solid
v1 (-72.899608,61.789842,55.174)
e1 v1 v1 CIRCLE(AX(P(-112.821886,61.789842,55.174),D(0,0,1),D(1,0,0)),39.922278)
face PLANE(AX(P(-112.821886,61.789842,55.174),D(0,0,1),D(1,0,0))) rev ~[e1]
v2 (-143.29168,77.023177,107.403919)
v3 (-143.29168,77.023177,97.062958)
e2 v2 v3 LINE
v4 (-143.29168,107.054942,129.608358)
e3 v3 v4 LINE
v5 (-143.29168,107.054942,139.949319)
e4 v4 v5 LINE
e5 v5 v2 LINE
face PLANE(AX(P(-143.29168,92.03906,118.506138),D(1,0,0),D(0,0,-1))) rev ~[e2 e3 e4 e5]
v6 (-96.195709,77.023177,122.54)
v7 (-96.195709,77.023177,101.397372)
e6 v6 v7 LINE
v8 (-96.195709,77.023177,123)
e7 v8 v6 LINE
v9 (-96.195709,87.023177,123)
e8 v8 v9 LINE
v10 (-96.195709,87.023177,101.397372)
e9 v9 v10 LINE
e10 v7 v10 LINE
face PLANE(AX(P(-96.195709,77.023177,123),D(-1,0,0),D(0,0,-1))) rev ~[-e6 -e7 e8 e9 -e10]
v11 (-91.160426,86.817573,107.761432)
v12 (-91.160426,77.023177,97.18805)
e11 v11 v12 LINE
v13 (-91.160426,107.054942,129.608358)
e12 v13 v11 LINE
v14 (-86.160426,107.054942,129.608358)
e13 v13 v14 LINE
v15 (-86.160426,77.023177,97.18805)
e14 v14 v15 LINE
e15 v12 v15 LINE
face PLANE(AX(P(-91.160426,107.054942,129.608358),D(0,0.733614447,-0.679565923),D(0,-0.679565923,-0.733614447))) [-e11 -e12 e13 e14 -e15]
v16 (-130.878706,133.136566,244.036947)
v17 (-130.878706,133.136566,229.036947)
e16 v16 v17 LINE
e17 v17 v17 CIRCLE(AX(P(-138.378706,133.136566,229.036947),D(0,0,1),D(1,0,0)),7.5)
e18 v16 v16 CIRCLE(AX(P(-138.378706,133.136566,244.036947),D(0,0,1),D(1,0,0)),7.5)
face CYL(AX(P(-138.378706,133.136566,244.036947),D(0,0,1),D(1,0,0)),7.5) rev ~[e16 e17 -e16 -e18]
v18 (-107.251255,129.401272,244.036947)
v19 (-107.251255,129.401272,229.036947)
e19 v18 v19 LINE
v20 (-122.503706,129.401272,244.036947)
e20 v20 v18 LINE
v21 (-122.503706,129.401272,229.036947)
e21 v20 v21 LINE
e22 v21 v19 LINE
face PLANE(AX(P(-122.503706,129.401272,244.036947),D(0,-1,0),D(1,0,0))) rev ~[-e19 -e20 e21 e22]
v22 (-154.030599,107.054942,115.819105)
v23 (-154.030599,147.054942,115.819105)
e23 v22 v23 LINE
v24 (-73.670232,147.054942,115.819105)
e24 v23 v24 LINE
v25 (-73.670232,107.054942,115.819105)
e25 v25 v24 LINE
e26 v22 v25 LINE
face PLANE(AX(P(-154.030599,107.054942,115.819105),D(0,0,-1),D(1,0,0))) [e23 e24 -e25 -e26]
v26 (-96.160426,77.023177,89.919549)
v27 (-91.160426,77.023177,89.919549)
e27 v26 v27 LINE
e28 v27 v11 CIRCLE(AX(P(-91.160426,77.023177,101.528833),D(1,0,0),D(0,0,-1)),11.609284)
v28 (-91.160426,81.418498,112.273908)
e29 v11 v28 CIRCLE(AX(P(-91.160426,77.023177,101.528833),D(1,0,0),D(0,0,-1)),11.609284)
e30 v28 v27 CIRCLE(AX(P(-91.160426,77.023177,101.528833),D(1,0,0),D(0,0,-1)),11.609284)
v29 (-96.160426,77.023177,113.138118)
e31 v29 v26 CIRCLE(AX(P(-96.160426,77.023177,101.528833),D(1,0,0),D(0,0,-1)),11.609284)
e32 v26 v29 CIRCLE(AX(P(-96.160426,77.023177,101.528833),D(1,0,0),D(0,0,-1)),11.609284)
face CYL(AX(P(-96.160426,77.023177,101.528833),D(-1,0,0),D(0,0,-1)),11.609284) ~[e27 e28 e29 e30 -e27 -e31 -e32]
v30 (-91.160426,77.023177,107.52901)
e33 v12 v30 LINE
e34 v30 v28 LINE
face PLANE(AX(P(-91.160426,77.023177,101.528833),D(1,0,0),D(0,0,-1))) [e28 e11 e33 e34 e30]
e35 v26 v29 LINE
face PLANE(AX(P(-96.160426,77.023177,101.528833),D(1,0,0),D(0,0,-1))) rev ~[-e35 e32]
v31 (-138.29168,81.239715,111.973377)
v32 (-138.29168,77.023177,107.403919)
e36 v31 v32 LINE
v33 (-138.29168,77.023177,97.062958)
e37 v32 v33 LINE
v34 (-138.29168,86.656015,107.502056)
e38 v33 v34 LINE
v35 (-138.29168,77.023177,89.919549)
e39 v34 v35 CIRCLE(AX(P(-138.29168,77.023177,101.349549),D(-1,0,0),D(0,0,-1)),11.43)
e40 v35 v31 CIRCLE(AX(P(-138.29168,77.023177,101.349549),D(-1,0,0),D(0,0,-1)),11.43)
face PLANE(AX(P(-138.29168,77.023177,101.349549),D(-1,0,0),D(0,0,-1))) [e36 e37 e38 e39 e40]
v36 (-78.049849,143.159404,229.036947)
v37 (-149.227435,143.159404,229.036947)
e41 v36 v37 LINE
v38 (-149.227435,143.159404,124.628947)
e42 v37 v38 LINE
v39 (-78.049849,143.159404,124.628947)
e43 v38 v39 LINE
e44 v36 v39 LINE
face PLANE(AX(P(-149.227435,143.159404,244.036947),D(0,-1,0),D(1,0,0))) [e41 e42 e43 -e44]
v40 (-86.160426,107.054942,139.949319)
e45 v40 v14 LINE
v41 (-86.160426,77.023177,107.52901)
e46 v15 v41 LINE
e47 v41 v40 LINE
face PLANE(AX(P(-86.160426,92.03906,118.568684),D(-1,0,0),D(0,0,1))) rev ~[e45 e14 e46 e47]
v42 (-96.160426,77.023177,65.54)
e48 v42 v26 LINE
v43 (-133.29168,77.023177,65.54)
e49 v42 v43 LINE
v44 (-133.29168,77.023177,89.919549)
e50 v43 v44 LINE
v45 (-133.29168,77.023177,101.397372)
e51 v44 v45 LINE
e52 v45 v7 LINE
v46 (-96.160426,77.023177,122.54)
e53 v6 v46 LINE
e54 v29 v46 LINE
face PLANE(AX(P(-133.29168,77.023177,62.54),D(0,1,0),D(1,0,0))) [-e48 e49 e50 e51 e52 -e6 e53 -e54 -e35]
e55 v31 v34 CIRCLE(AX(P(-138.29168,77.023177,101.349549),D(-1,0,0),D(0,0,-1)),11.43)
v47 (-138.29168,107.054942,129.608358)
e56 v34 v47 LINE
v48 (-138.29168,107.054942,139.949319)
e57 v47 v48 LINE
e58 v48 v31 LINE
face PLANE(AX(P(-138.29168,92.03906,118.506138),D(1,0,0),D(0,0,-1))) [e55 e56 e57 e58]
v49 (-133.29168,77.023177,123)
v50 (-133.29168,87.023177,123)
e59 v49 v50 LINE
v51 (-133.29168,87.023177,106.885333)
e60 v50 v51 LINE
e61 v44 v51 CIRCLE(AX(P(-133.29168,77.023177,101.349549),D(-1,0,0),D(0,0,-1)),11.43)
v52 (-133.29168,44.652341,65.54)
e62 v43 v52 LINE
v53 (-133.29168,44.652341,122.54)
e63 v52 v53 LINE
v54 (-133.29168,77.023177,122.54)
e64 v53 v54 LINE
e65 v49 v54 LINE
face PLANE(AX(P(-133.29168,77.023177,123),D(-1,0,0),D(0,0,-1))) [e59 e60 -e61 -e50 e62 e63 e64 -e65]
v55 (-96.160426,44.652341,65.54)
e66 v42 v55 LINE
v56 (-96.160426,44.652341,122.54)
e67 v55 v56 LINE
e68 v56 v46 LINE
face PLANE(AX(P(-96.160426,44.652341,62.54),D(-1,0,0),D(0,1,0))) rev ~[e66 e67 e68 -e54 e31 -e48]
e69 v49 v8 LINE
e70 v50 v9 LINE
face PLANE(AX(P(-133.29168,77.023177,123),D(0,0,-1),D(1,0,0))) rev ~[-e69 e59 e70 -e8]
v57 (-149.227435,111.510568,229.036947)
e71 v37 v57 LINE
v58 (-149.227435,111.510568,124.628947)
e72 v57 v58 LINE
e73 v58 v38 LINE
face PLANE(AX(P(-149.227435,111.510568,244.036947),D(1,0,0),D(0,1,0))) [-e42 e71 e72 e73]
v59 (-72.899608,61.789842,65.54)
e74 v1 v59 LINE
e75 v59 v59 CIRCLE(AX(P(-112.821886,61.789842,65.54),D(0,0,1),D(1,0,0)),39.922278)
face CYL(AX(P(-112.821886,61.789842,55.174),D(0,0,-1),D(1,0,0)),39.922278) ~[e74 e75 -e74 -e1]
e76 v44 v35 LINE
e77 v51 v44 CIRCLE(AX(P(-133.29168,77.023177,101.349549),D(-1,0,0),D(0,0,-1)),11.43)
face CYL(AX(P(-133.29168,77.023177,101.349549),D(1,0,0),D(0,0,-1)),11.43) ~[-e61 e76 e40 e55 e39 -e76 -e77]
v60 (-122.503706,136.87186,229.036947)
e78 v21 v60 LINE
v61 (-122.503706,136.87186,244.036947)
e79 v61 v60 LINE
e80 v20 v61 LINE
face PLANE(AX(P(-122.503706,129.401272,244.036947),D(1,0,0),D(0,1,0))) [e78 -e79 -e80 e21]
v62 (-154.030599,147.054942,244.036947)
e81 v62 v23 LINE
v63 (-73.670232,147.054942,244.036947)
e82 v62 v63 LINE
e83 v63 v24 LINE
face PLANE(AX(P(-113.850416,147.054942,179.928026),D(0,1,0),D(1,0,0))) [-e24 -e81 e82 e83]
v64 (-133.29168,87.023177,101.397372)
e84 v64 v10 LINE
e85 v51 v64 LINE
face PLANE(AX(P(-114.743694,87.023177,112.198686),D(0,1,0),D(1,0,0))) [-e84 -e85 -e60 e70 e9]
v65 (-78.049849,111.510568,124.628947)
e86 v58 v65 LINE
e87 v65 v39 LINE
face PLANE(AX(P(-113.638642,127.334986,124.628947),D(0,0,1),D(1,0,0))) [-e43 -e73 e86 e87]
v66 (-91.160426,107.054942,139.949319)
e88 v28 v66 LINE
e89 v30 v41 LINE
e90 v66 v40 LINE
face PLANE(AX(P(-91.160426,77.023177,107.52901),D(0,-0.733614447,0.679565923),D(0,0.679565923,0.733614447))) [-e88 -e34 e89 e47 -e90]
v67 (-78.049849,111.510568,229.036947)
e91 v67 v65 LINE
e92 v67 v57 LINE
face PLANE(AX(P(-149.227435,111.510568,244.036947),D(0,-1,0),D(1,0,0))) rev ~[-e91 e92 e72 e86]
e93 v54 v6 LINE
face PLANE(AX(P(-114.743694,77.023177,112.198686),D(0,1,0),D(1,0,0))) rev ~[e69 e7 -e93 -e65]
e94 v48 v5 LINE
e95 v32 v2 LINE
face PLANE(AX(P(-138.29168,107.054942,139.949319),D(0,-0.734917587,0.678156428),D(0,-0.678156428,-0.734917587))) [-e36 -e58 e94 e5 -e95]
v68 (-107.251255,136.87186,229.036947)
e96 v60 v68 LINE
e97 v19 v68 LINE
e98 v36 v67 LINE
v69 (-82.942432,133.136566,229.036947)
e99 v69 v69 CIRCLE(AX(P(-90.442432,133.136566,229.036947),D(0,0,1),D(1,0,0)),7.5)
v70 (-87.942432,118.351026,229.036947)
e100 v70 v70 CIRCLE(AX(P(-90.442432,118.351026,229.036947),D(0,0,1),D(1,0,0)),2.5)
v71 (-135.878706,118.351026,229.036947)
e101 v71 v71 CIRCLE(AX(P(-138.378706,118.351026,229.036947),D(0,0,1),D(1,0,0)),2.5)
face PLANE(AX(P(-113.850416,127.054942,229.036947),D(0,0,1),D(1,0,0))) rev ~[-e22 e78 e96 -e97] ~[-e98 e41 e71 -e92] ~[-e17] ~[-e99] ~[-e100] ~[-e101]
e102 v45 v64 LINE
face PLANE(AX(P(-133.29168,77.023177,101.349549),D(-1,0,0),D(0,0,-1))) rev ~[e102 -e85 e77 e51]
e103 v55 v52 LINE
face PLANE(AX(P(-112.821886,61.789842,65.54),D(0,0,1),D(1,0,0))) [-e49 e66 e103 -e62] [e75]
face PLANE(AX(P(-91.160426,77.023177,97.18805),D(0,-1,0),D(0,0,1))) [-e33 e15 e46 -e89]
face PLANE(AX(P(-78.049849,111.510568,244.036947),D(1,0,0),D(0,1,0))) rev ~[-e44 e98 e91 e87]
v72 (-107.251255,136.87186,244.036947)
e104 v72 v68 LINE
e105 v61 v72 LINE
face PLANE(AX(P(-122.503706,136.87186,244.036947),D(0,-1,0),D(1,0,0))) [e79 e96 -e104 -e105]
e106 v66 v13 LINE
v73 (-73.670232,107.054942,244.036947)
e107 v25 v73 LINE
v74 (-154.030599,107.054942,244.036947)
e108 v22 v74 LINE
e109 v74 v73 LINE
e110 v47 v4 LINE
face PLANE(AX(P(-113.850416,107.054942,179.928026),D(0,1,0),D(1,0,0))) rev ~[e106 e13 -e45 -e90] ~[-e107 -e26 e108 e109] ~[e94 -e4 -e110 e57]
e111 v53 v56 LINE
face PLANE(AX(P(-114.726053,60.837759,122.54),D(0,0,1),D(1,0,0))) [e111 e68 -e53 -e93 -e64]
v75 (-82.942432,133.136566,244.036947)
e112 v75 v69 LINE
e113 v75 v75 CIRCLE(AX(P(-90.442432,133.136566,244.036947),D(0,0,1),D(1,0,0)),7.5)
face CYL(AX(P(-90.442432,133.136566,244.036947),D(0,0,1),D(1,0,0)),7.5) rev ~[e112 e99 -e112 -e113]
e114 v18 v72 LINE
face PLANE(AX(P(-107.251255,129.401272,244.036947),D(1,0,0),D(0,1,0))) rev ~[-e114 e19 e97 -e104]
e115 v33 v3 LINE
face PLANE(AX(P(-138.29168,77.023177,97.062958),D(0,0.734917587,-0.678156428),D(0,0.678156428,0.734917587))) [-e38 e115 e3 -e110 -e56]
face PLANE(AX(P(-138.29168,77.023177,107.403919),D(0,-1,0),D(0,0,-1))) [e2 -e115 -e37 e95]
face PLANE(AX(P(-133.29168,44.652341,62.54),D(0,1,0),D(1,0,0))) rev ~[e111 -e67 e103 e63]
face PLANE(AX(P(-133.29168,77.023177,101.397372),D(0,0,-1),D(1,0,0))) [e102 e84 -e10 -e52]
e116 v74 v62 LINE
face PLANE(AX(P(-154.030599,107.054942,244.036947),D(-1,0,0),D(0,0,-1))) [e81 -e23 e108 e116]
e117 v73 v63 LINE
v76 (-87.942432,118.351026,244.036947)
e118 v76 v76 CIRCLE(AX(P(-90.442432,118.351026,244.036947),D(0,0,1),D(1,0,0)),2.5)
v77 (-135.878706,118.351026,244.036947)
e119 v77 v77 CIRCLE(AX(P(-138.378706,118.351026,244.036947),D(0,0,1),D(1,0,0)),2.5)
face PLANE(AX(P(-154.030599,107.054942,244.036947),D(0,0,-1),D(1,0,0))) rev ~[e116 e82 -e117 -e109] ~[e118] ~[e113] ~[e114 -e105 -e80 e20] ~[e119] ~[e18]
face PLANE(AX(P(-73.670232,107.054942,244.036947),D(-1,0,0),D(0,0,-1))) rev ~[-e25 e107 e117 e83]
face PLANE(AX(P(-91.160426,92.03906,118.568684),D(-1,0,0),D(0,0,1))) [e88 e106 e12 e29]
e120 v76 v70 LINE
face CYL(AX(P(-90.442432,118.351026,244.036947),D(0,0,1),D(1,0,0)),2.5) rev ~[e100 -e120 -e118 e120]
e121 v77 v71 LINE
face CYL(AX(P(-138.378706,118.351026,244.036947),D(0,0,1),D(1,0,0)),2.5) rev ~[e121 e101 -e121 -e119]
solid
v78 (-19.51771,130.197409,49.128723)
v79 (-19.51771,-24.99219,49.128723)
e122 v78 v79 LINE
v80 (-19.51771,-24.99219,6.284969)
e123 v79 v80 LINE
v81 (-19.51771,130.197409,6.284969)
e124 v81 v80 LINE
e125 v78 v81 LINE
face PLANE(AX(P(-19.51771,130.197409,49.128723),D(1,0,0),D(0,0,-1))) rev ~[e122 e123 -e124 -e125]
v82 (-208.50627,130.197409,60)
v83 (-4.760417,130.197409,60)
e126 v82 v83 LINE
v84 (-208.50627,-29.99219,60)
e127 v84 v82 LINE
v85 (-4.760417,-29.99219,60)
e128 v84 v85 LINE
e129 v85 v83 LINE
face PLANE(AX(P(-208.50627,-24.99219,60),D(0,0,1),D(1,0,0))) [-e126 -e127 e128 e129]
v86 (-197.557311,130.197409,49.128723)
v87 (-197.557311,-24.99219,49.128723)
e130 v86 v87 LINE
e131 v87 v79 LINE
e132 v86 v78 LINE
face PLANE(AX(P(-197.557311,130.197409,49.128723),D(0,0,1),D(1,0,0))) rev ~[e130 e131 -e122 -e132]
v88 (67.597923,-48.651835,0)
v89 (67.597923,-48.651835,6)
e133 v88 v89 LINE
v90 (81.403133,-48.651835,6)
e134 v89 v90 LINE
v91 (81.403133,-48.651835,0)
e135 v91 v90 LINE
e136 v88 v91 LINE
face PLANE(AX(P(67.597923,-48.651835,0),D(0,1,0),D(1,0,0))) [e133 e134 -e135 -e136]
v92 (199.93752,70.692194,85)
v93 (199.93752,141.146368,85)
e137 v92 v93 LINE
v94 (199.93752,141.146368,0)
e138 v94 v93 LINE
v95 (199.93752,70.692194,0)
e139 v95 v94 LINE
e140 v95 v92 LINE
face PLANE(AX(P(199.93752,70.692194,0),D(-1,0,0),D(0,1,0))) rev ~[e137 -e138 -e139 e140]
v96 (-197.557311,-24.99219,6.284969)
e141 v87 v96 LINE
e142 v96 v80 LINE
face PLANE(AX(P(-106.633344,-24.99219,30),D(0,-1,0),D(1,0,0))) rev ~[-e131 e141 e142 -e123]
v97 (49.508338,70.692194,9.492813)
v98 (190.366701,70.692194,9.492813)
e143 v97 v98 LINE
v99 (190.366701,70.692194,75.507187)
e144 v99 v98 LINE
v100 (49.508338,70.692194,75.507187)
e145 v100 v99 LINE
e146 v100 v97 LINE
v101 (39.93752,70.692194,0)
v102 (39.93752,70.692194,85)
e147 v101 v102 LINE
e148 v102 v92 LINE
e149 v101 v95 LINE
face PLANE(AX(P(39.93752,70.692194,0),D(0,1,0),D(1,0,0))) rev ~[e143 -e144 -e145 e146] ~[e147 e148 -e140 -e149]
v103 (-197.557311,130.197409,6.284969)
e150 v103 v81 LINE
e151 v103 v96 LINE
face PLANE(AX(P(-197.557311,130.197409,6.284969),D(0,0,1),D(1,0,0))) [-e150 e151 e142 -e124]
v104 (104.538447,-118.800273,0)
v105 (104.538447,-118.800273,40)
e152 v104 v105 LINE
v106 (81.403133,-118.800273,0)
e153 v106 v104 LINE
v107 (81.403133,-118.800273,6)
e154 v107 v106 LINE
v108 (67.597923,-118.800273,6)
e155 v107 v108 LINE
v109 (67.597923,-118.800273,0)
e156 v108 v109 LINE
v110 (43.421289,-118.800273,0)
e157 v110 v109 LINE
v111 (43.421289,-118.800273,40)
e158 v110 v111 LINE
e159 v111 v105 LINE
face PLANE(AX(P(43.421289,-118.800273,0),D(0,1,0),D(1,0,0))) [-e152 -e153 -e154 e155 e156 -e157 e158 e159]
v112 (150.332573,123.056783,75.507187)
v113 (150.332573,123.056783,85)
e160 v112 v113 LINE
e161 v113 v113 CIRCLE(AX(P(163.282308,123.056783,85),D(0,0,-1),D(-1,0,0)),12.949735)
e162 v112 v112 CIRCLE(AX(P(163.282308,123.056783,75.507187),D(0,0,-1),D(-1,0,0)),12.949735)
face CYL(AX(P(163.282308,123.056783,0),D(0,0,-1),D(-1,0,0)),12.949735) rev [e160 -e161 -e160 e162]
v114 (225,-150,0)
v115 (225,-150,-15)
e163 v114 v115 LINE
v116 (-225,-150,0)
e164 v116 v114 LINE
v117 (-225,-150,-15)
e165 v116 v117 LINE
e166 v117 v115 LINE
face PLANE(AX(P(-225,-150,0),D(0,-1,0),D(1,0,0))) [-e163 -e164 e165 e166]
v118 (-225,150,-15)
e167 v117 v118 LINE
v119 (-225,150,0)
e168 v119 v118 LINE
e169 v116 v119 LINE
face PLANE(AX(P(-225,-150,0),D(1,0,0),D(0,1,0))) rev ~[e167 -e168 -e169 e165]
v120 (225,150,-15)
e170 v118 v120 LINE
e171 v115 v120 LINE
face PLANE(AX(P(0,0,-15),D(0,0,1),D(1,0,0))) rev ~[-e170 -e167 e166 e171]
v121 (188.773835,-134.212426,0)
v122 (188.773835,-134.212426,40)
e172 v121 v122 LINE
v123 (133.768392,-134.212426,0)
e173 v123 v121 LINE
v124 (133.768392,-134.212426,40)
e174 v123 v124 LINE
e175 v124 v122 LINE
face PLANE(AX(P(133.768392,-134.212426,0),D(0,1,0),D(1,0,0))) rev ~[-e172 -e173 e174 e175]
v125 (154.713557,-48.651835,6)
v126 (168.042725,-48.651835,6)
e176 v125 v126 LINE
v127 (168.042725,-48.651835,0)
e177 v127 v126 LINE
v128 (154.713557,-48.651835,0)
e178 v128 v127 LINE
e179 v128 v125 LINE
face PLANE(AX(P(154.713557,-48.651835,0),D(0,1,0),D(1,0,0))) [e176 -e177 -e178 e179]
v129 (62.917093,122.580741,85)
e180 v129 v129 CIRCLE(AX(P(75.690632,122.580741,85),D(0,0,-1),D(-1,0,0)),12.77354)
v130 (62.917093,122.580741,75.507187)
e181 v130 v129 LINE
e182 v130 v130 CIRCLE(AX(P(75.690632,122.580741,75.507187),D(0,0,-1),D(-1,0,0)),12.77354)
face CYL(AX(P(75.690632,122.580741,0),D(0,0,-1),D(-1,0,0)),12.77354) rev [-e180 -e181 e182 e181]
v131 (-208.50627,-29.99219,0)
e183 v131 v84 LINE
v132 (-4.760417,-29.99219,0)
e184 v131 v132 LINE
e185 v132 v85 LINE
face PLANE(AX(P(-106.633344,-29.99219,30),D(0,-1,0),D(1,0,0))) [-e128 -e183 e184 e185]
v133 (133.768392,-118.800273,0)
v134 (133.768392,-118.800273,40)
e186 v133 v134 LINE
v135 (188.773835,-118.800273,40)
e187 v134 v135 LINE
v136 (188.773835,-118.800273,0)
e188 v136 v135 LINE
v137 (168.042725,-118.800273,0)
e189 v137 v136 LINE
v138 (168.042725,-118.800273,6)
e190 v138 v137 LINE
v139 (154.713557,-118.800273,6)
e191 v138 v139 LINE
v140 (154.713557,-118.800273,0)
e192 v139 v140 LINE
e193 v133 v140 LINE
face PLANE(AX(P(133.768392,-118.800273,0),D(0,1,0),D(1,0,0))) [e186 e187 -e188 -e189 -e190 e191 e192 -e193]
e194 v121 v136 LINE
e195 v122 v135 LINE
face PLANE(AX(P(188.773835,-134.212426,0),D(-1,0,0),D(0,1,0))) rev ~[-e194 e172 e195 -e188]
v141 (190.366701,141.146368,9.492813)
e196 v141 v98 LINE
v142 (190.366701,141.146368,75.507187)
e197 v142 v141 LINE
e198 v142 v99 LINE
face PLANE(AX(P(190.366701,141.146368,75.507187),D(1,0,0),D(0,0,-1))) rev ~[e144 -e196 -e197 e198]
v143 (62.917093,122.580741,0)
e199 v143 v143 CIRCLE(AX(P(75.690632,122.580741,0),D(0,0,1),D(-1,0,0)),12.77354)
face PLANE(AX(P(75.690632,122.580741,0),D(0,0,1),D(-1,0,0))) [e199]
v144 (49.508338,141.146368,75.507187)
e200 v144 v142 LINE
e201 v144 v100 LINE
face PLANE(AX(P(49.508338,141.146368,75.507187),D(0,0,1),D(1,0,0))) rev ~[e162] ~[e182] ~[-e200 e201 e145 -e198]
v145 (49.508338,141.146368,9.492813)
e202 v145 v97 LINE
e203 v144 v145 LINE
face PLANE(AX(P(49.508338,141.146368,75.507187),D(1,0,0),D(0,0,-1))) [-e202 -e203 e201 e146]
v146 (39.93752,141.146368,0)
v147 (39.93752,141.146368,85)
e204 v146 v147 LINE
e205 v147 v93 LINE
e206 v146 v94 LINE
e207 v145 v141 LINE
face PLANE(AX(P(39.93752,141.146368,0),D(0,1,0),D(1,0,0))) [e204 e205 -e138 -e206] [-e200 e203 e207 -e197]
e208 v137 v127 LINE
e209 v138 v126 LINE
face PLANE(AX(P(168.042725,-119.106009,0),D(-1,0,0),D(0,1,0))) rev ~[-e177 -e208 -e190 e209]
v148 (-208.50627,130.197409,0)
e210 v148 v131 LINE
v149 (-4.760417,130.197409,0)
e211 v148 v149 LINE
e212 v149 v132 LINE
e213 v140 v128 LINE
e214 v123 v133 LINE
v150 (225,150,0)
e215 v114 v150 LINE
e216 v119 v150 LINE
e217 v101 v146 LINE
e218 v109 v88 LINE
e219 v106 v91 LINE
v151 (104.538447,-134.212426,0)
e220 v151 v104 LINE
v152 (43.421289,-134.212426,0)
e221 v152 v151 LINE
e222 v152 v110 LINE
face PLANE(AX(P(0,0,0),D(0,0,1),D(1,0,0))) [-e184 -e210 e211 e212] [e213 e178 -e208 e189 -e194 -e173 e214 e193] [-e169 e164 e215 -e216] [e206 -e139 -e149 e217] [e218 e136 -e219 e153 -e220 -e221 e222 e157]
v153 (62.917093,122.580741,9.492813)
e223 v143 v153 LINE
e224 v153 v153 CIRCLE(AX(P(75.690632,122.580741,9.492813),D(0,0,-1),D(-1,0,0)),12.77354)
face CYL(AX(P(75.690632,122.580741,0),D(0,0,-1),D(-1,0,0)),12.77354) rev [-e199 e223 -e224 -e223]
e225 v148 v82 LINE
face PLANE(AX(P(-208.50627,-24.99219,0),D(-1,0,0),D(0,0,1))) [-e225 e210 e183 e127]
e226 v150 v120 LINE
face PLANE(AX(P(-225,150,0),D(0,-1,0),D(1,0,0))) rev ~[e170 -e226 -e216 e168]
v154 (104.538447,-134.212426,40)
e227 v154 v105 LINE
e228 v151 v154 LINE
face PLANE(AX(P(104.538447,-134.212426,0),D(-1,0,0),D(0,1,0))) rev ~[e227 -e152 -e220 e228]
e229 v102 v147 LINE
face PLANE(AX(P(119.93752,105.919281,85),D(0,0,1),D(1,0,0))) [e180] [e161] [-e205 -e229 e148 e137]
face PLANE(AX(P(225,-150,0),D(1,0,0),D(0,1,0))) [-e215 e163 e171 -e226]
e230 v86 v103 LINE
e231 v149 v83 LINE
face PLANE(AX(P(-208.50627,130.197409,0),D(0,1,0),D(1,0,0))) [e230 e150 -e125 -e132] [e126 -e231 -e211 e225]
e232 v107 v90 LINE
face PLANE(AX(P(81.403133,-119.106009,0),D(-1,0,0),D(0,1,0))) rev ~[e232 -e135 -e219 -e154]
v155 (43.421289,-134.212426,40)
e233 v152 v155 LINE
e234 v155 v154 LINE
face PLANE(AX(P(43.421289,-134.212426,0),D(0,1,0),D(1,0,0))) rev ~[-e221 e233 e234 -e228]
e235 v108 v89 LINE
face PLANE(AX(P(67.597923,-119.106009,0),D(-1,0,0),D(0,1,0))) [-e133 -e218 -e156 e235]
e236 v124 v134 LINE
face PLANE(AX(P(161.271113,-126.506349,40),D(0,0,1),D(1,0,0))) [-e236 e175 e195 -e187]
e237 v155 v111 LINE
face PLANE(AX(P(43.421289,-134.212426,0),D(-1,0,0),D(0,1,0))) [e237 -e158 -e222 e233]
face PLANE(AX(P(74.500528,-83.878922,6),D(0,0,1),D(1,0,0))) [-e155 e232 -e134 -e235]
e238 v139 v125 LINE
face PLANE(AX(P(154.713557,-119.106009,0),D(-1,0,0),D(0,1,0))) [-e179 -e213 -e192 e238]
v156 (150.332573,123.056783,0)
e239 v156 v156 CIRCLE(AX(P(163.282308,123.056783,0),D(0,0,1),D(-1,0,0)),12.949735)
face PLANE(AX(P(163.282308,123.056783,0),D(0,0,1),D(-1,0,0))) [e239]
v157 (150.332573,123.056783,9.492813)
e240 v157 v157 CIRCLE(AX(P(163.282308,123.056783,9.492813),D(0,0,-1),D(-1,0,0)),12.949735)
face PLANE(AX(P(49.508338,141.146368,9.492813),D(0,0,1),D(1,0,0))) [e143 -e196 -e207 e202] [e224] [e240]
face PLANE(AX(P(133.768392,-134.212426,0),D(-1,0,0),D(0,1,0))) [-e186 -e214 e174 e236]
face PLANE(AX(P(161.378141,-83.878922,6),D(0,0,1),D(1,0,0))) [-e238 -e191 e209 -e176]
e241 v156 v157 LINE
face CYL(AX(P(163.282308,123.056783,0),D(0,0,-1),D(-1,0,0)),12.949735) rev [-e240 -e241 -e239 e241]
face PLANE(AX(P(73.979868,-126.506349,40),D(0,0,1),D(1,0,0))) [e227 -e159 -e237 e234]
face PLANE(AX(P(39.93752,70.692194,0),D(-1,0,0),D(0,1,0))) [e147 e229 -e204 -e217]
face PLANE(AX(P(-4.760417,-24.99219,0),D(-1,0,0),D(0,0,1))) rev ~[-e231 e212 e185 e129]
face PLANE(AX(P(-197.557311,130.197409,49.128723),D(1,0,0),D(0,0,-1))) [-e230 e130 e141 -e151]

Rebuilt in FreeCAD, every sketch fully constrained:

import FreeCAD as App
import Part
import Sketcher

V = App.Vector


def add_polygon(sketch, points):
    """Adds a closed chain of lines whose ends are joined by coincident constraints."""
    first, n = sketch.GeometryCount, len(points)
    for a, b in zip(points, points[1:] + points[:1]):
        sketch.addGeometry(Part.LineSegment(App.Vector(*a, 0), App.Vector(*b, 0)), False)
    for i in range(n):
        sketch.addConstraint(Sketcher.Constraint("Coincident", first + i, 2, first + (i + 1) % n, 1))

doc = App.newDocument("Part")
body = doc.addObject("PartDesign::Body", "Body")

# Sketch on XY plane
sketch1 = body.newObject("Sketcher::SketchObject", "Sketch")
sketch1.AttachmentSupport = (doc.getObject("XY_Plane"), [""])
sketch1.MapMode = "FlatFace"
add_polygon(sketch1, [(-225, 150), (-225, -150), (225, -150), (225, 150)])  # lines 0-3
sketch1.addConstraint(Sketcher.Constraint("Vertical", 0))
sketch1.addConstraint(Sketcher.Constraint("Horizontal", 1))
sketch1.addConstraint(Sketcher.Constraint("Vertical", 2))
sketch1.addConstraint(Sketcher.Constraint("Horizontal", 3))
sketch1.addConstraint(Sketcher.Constraint("Symmetric", 0, 2, 2, 2, -1, 1))
sketch1.addConstraint(Sketcher.Constraint("DistanceX", 1, 1, 1, 2, 450.0))
sketch1.addConstraint(Sketcher.Constraint("DistanceY", 0, 2, 0, 1, 300.0))
pad1 = body.newObject("PartDesign::Pad", "Pad")
pad1.Profile = sketch1
pad1.Length = 15
pad1.Reversed = True

# Sketch on XY plane
sketch2 = body.newObject("Sketcher::SketchObject", "Sketch001")
sketch2.AttachmentSupport = (doc.getObject("XY_Plane"), [""])
sketch2.MapMode = "FlatFace"
add_polygon(sketch2, [(40, 141), (40, 71), (200, 71), (200, 141)])  # lines 0-3
sketch2.addConstraint(Sketcher.Constraint("Vertical", 0))
sketch2.addConstraint(Sketcher.Constraint("Horizontal", 1))
sketch2.addConstraint(Sketcher.Constraint("Vertical", 2))
sketch2.addConstraint(Sketcher.Constraint("Horizontal", 3))
sketch2.addConstraint(Sketcher.Constraint("DistanceX", 1, 1, 1, 2, 160.0))
sketch2.addConstraint(Sketcher.Constraint("DistanceY", 0, 2, 0, 1, 70.454174))
sketch2.addConstraint(Sketcher.Constraint("DistanceX", -1, 1, 0, 2, 39.93752))
sketch2.addConstraint(Sketcher.Constraint("DistanceY", -1, 1, 0, 2, 70.692194))
pad2 = body.newObject("PartDesign::Pad", "Pad001")
pad2.Profile = sketch2
pad2.Length = 85

# Sketch on XZ plane
sketch3 = body.newObject("Sketcher::SketchObject", "Sketch002")
sketch3.AttachmentSupport = (doc.getObject("XZ_Plane"), [""])
sketch3.MapMode = "FlatFace"
sketch3.AttachmentOffset = App.Placement(V(0, 0, -141.146368), App.Rotation())
add_polygon(sketch3, [(50, 9), (50, 76), (190, 76), (190, 9)])  # lines 0-3
sketch3.addConstraint(Sketcher.Constraint("Vertical", 0))
sketch3.addConstraint(Sketcher.Constraint("Horizontal", 1))
sketch3.addConstraint(Sketcher.Constraint("Vertical", 2))
sketch3.addConstraint(Sketcher.Constraint("Horizontal", 3))
sketch3.addConstraint(Sketcher.Constraint("DistanceX", -1, 1, 1, 2, 190.366701))
sketch3.addConstraint(Sketcher.Constraint("DistanceX", 1, 1, 1, 2, 140.858363))
sketch3.addConstraint(Sketcher.Constraint("DistanceY", 0, 1, 0, 2, 66.014374))
sketch3.addConstraint(Sketcher.Constraint("DistanceY", -1, 1, 0, 2, 75.507187))
pocket1 = body.newObject("PartDesign::Pocket", "Pocket")
pocket1.Profile = sketch3
pocket1.Length = 85
pocket1.Reversed = True

# Sketch on XY plane
sketch4 = body.newObject("Sketcher::SketchObject", "Sketch003")
sketch4.AttachmentSupport = (doc.getObject("XY_Plane"), [""])
sketch4.MapMode = "FlatFace"
add_polygon(sketch4, [(-209, 130), (-209, -25), (-5, -25), (-5, 130)])  # lines 0-3
sketch4.addConstraint(Sketcher.Constraint("Vertical", 0))
sketch4.addConstraint(Sketcher.Constraint("Horizontal", 1))
sketch4.addConstraint(Sketcher.Constraint("Vertical", 2))
sketch4.addConstraint(Sketcher.Constraint("Horizontal", 3))
sketch4.addConstraint(Sketcher.Constraint("DistanceY", 0, 2, 0, 1, 155.189598))
sketch4.addConstraint(Sketcher.Constraint("DistanceX", 1, 1, 1, 2, 203.745853))
sketch4.addConstraint(Sketcher.Constraint("DistanceX", 0, 2, -1, 1, 208.50627))
sketch4.addConstraint(Sketcher.Constraint("DistanceY", 0, 2, -1, 1, 24.99219))
pad3 = body.newObject("PartDesign::Pad", "Pad002")
pad3.Profile = sketch4
pad3.Length = 60

# Sketch on XZ plane
sketch5 = body.newObject("Sketcher::SketchObject", "Sketch004")
sketch5.AttachmentSupport = (doc.getObject("XZ_Plane"), [""])
sketch5.MapMode = "FlatFace"
sketch5.AttachmentOffset = App.Placement(V(0, 0, -130.197409), App.Rotation())
add_polygon(sketch5, [(-198, 6), (-198, 49), (-20, 49), (-20, 6)])  # lines 0-3
sketch5.addConstraint(Sketcher.Constraint("Vertical", 0))
sketch5.addConstraint(Sketcher.Constraint("Horizontal", 1))
sketch5.addConstraint(Sketcher.Constraint("Vertical", 2))
sketch5.addConstraint(Sketcher.Constraint("Horizontal", 3))
sketch5.addConstraint(Sketcher.Constraint("DistanceX", 1, 1, 1, 2, 178.039601))
sketch5.addConstraint(Sketcher.Constraint("DistanceY", 0, 1, 0, 2, 42.843754))
sketch5.addConstraint(Sketcher.Constraint("DistanceX", 0, 2, -1, 1, 197.557311))
sketch5.addConstraint(Sketcher.Constraint("DistanceY", -1, 1, 2, 2, 6.284969))
pocket2 = body.newObject("PartDesign::Pocket", "Pocket001")
pocket2.Profile = sketch5
pocket2.Type = "ThroughAll"
pocket2.Reversed = True

# Sketch on XY plane
sketch6 = body.newObject("Sketcher::SketchObject", "Sketch005")
sketch6.AttachmentSupport = (doc.getObject("XY_Plane"), [""])
sketch6.MapMode = "FlatFace"
sketch6.addGeometry(Part.Circle(V(76, 123, 0), V(0, 0, 1), 13), False)
sketch6.addConstraint(Sketcher.Constraint("Diameter", 0, 25.547079))
sketch6.addConstraint(Sketcher.Constraint("DistanceY", -1, 1, 0, 3, 122.580741))
sketch6.addConstraint(Sketcher.Constraint("DistanceX", -1, 1, 0, 3, 75.690632))
pocket3 = body.newObject("PartDesign::Pocket", "Pocket002")
pocket3.Profile = sketch6
pocket3.Type = "ThroughAll"
pocket3.Reversed = True

# Sketch on XY plane
sketch7 = body.newObject("Sketcher::SketchObject", "Sketch006")
sketch7.AttachmentSupport = (doc.getObject("XY_Plane"), [""])
sketch7.MapMode = "FlatFace"
sketch7.addGeometry(Part.Circle(V(163, 123, 0), V(0, 0, 1), 13), False)
sketch7.addConstraint(Sketcher.Constraint("Diameter", 0, 25.899469))
sketch7.addConstraint(Sketcher.Constraint("DistanceX", -1, 1, 0, 3, 163.282308))
sketch7.addConstraint(Sketcher.Constraint("DistanceY", -1, 1, 0, 3, 123.056783))
pocket4 = body.newObject("PartDesign::Pocket", "Pocket003")
pocket4.Profile = sketch7
pocket4.Type = "ThroughAll"
pocket4.Reversed = True

# Sketch on XZ plane
sketch8 = body.newObject("Sketcher::SketchObject", "Sketch007")
sketch8.AttachmentSupport = (doc.getObject("XZ_Plane"), [""])
sketch8.MapMode = "FlatFace"
sketch8.AttachmentOffset = App.Placement(V(0, 0, 24.99219), App.Rotation())
add_polygon(sketch8, [(-209, 60), (-209, 0), (-5, 0), (-5, 60)])  # lines 0-3
sketch8.addConstraint(Sketcher.Constraint("Vertical", 0))
sketch8.addConstraint(Sketcher.Constraint("Horizontal", 1))
sketch8.addConstraint(Sketcher.Constraint("Vertical", 2))
sketch8.addConstraint(Sketcher.Constraint("Horizontal", 3))
sketch8.addConstraint(Sketcher.Constraint("PointOnObject", 0, 2, -1))
sketch8.addConstraint(Sketcher.Constraint("DistanceY", 0, 2, 0, 1, 60.0))
sketch8.addConstraint(Sketcher.Constraint("DistanceX", 1, 1, 1, 2, 203.745853))
sketch8.addConstraint(Sketcher.Constraint("DistanceX", 0, 2, -1, 1, 208.50627))
pad4 = body.newObject("PartDesign::Pad", "Pad003")
pad4.Profile = sketch8
pad4.Length = 5

# Sketch on XY plane
sketch9 = body.newObject("Sketcher::SketchObject", "Sketch008")
sketch9.AttachmentSupport = (doc.getObject("XY_Plane"), [""])
sketch9.MapMode = "FlatFace"
add_polygon(sketch9, [(68, -49), (68, -119), (81, -119), (81, -49)])  # lines 0-3
add_polygon(sketch9, [(155, -49), (155, -119), (168, -119), (168, -49)])  # lines 4-7
sketch9.addConstraint(Sketcher.Constraint("Vertical", 0))
sketch9.addConstraint(Sketcher.Constraint("Horizontal", 1))
sketch9.addConstraint(Sketcher.Constraint("Vertical", 2))
sketch9.addConstraint(Sketcher.Constraint("Horizontal", 3))
sketch9.addConstraint(Sketcher.Constraint("Vertical", 4))
sketch9.addConstraint(Sketcher.Constraint("Horizontal", 5))
sketch9.addConstraint(Sketcher.Constraint("Vertical", 6))
sketch9.addConstraint(Sketcher.Constraint("Horizontal", 7))
sketch9.addConstraint(Sketcher.Constraint("Horizontal", 1, 2, 4, 2))
sketch9.addConstraint(Sketcher.Constraint("Horizontal", 3, 2, 6, 2))
sketch9.addConstraint(Sketcher.Constraint("DistanceX", 1, 1, 1, 2, 13.80521))
sketch9.addConstraint(Sketcher.Constraint("DistanceX", 0, 2, 5, 2, 100.444801))
sketch9.addConstraint(Sketcher.Constraint("DistanceX", 5, 1, 5, 2, 13.329168))
sketch9.addConstraint(Sketcher.Constraint("DistanceY", 0, 2, 0, 1, 70.454174))
sketch9.addConstraint(Sketcher.Constraint("DistanceY", 0, 2, -1, 1, 119.106009))
sketch9.addConstraint(Sketcher.Constraint("DistanceX", -1, 1, 0, 2, 67.597923))
pad5 = body.newObject("PartDesign::Pad", "Pad004")
pad5.Profile = sketch9
pad5.Length = 6

# Sketch on XY plane
sketch10 = body.newObject("Sketcher::SketchObject", "Sketch009")
sketch10.AttachmentSupport = (doc.getObject("XY_Plane"), [""])
sketch10.MapMode = "FlatFace"
add_polygon(sketch10, [(134, -119), (134, -134), (189, -134), (189, -119)])  # lines 0-3
add_polygon(sketch10, [(43, -119), (43, -134), (105, -134), (105, -119)])  # lines 4-7
sketch10.addConstraint(Sketcher.Constraint("Vertical", 0))
sketch10.addConstraint(Sketcher.Constraint("Horizontal", 1))
sketch10.addConstraint(Sketcher.Constraint("Vertical", 2))
sketch10.addConstraint(Sketcher.Constraint("Horizontal", 3))
sketch10.addConstraint(Sketcher.Constraint("Vertical", 4))
sketch10.addConstraint(Sketcher.Constraint("Horizontal", 5))
sketch10.addConstraint(Sketcher.Constraint("Vertical", 6))
sketch10.addConstraint(Sketcher.Constraint("Horizontal", 7))
sketch10.addConstraint(Sketcher.Constraint("Horizontal", 1, 2, 4, 2))
sketch10.addConstraint(Sketcher.Constraint("Horizontal", 3, 2, 6, 2))
sketch10.addConstraint(Sketcher.Constraint("DistanceX", 5, 1, 5, 2, 61.117158))
sketch10.addConstraint(Sketcher.Constraint("DistanceX", 1, 1, 1, 2, 55.005442))
sketch10.addConstraint(Sketcher.Constraint("DistanceY", 0, 2, 0, 1, 15.412153))
sketch10.addConstraint(Sketcher.Constraint("DistanceX", -1, 1, 4, 2, 43.421289))
sketch10.addConstraint(Sketcher.Constraint("DistanceX", -1, 1, 0, 2, 133.768392))
sketch10.addConstraint(Sketcher.Constraint("DistanceY", 0, 2, -1, 1, 134.212426))
pad6 = body.newObject("PartDesign::Pad", "Pad005")
pad6.Profile = sketch10
pad6.Length = 40
body2 = doc.addObject("PartDesign::Body", "Body001")

# Sketch on XY plane
sketch11 = body2.newObject("Sketcher::SketchObject", "Sketch010")
sketch11.AttachmentSupport = (doc.getObject("XY_Plane001"), [""])
sketch11.MapMode = "FlatFace"
sketch11.AttachmentOffset = App.Placement(V(0, 0, 62.54), App.Rotation())
sketch11.addGeometry(Part.Circle(V(-113, 62, 0), V(0, 0, 1), 40), False)
sketch11.addConstraint(Sketcher.Constraint("Diameter", 0, 79.844557))
sketch11.addConstraint(Sketcher.Constraint("DistanceX", 0, 3, -1, 1, 112.821886))
sketch11.addConstraint(Sketcher.Constraint("DistanceY", -1, 1, 0, 3, 61.789842))
pad7 = body2.newObject("PartDesign::Pad", "Pad006")
pad7.Profile = sketch11
pad7.Type = "TwoLengths"
pad7.Length = 3
pad7.Length2 = 7.366

# Sketch on XY plane
sketch12 = body2.newObject("Sketcher::SketchObject", "Sketch011")
sketch12.AttachmentSupport = (doc.getObject("XY_Plane001"), [""])
sketch12.MapMode = "FlatFace"
sketch12.AttachmentOffset = App.Placement(V(0, 0, 62.54), App.Rotation())
add_polygon(sketch12, [(-133, 77), (-133, 45), (-96, 45), (-96, 77)])  # lines 0-3
sketch12.addConstraint(Sketcher.Constraint("Vertical", 0))
sketch12.addConstraint(Sketcher.Constraint("Horizontal", 1))
sketch12.addConstraint(Sketcher.Constraint("Vertical", 2))
sketch12.addConstraint(Sketcher.Constraint("Horizontal", 3))
sketch12.addConstraint(Sketcher.Constraint("DistanceX", 1, 1, 1, 2, 37.131254))
sketch12.addConstraint(Sketcher.Constraint("DistanceY", 0, 2, 0, 1, 32.370836))
sketch12.addConstraint(Sketcher.Constraint("DistanceX", 0, 2, -1, 1, 133.29168))
sketch12.addConstraint(Sketcher.Constraint("DistanceY", -1, 1, 0, 2, 44.652341))
pad8 = body2.newObject("PartDesign::Pad", "Pad007")
pad8.Profile = sketch12
pad8.Length = 60

# Sketch on XZ plane
sketch13 = body2.newObject("Sketcher::SketchObject", "Sketch012")
sketch13.AttachmentSupport = (doc.getObject("XZ_Plane001"), [""])
sketch13.MapMode = "FlatFace"
sketch13.AttachmentOffset = App.Placement(V(0, 0, -77.023177), App.Rotation())
add_polygon(sketch13, [(-133, 101), (-133, 123), (-96, 123), (-96, 101)])  # lines 0-3
sketch13.addConstraint(Sketcher.Constraint("Vertical", 0))
sketch13.addConstraint(Sketcher.Constraint("Horizontal", 1))
sketch13.addConstraint(Sketcher.Constraint("Vertical", 2))
sketch13.addConstraint(Sketcher.Constraint("Horizontal", 3))
sketch13.addConstraint(Sketcher.Constraint("DistanceY", -1, 1, 0, 2, 123.0))
sketch13.addConstraint(Sketcher.Constraint("DistanceX", 1, 1, 1, 2, 37.095971))
sketch13.addConstraint(Sketcher.Constraint("DistanceY", 0, 1, 0, 2, 21.602628))
sketch13.addConstraint(Sketcher.Constraint("DistanceX", 0, 2, -1, 1, 133.29168))
pad9 = body2.newObject("PartDesign::Pad", "Pad008")
pad9.Profile = sketch13
pad9.Length = 10
pad9.Reversed = True

# Sketch on YZ plane
sketch14 = body2.newObject("Sketcher::SketchObject", "Sketch013")
sketch14.AttachmentSupport = (doc.getObject("YZ_Plane001"), [""])
sketch14.MapMode = "FlatFace"
sketch14.AttachmentOffset = App.Placement(V(0, 0, -133.29168), App.Rotation())
sketch14.addGeometry(Part.Circle(V(77, 101, 0), V(0, 0, 1), 11), False)
sketch14.addConstraint(Sketcher.Constraint("Diameter", 0, 22.86))
sketch14.addConstraint(Sketcher.Constraint("DistanceY", -1, 1, 0, 3, 101.349549))
sketch14.addConstraint(Sketcher.Constraint("DistanceX", -1, 1, 0, 3, 77.023177))
pad10 = body2.newObject("PartDesign::Pad", "Pad009")
pad10.Profile = sketch14
pad10.Length = 5
pad10.Reversed = True

# Sketch on YZ plane
sketch15 = body2.newObject("Sketcher::SketchObject", "Sketch014")
sketch15.AttachmentSupport = (doc.getObject("YZ_Plane001"), [""])
sketch15.MapMode = "FlatFace"
sketch15.AttachmentOffset = App.Placement(V(0, 0, -96.160426), App.Rotation())
sketch15.addGeometry(Part.Circle(V(77, 102, 0), V(0, 0, 1), 12), False)
sketch15.addConstraint(Sketcher.Constraint("Diameter", 0, 23.218568))
sketch15.addConstraint(Sketcher.Constraint("DistanceX", -1, 1, 0, 3, 77.023177))
sketch15.addConstraint(Sketcher.Constraint("DistanceY", -1, 1, 0, 3, 101.528833))
pad11 = body2.newObject("PartDesign::Pad", "Pad010")
pad11.Profile = sketch15
pad11.Length = 5

# Sketch on YZ plane
sketch16 = body2.newObject("Sketcher::SketchObject", "Sketch015")
sketch16.AttachmentSupport = (doc.getObject("YZ_Plane001"), [""])
sketch16.MapMode = "FlatFace"
sketch16.AttachmentOffset = App.Placement(V(0, 0, -91.160426), App.Rotation())
add_polygon(sketch16, [(77, 108), (77, 97), (107, 130), (107, 140)])  # lines 0-3
sketch16.addConstraint(Sketcher.Constraint("Vertical", 0))
sketch16.addConstraint(Sketcher.Constraint("Vertical", 2))
sketch16.addConstraint(Sketcher.Constraint("Parallel", 1, 3))
sketch16.addConstraint(Sketcher.Constraint("DistanceY", 0, 2, 0, 1, 10.34096))
sketch16.addConstraint(Sketcher.Constraint("Distance", 1, 44.192571))
sketch16.addConstraint(Sketcher.Constraint("DistanceY", -1, 1, 0, 2, 97.18805))
sketch16.addConstraint(Sketcher.Constraint("DistanceY", -1, 1, 1, 2, 129.608358))
sketch16.addConstraint(Sketcher.Constraint("DistanceX", -1, 1, 0, 2, 77.023177))
pad12 = body2.newObject("PartDesign::Pad", "Pad011")
pad12.Profile = sketch16
pad12.Length = 5

# Sketch on YZ plane
sketch17 = body2.newObject("Sketcher::SketchObject", "Sketch016")
sketch17.AttachmentSupport = (doc.getObject("YZ_Plane001"), [""])
sketch17.MapMode = "FlatFace"
sketch17.AttachmentOffset = App.Placement(V(0, 0, -138.29168), App.Rotation())
add_polygon(sketch17, [(107, 140), (107, 130), (77, 97), (77, 107)])  # lines 0-3
sketch17.addConstraint(Sketcher.Constraint("Vertical", 0))
sketch17.addConstraint(Sketcher.Constraint("Vertical", 2))
sketch17.addConstraint(Sketcher.Constraint("Parallel", 1, 3))
sketch17.addConstraint(Sketcher.Constraint("DistanceY", 0, 2, 0, 1, 10.34096))
sketch17.addConstraint(Sketcher.Constraint("DistanceY", 1, 2, 0, 2, 32.5454))
sketch17.addConstraint(Sketcher.Constraint("Distance", 1, 44.284422))
sketch17.addConstraint(Sketcher.Constraint("DistanceY", -1, 1, 0, 2, 129.608358))
sketch17.addConstraint(Sketcher.Constraint("DistanceX", -1, 1, 0, 2, 107.054942))
pad13 = body2.newObject("PartDesign::Pad", "Pad012")
pad13.Profile = sketch17
pad13.Length = 5
pad13.Reversed = True

# Sketch on XZ plane
sketch18 = body2.newObject("Sketcher::SketchObject", "Sketch017")
sketch18.AttachmentSupport = (doc.getObject("XZ_Plane001"), [""])
sketch18.MapMode = "FlatFace"
sketch18.AttachmentOffset = App.Placement(V(0, 0, -107.054942), App.Rotation())
add_polygon(sketch18, [(-154, 116), (-154, 244), (-74, 244), (-74, 116)])  # lines 0-3
sketch18.addConstraint(Sketcher.Constraint("Vertical", 0))
sketch18.addConstraint(Sketcher.Constraint("Horizontal", 1))
sketch18.addConstraint(Sketcher.Constraint("Vertical", 2))
sketch18.addConstraint(Sketcher.Constraint("Horizontal", 3))
sketch18.addConstraint(Sketcher.Constraint("DistanceX", 0, 2, -1, 1, 154.030599))
sketch18.addConstraint(Sketcher.Constraint("DistanceX", 1, 1, 1, 2, 80.360367))
sketch18.addConstraint(Sketcher.Constraint("DistanceY", 0, 1, 0, 2, 128.217842))
sketch18.addConstraint(Sketcher.Constraint("DistanceY", -1, 1, 0, 2, 244.036947))
pad14 = body2.newObject("PartDesign::Pad", "Pad013")
pad14.Profile = sketch18
pad14.Length = 40
pad14.Reversed = True

# Sketch on XY plane
sketch19 = body2.newObject("Sketcher::SketchObject", "Sketch018")
sketch19.AttachmentSupport = (doc.getObject("XY_Plane001"), [""])
sketch19.MapMode = "FlatFace"
sketch19.AttachmentOffset = App.Placement(V(0, 0, 244.036947), App.Rotation())
add_polygon(sketch19, [(-149, 143), (-149, 112), (-78, 112), (-78, 143)])  # lines 0-3
sketch19.addConstraint(Sketcher.Constraint("Vertical", 0))
sketch19.addConstraint(Sketcher.Constraint("Horizontal", 1))
sketch19.addConstraint(Sketcher.Constraint("Vertical", 2))
sketch19.addConstraint(Sketcher.Constraint("Horizontal", 3))
sketch19.addConstraint(Sketcher.Constraint("DistanceX", 1, 1, 1, 2, 71.177586))
sketch19.addConstraint(Sketcher.Constraint("DistanceY", 0, 2, 0, 1, 31.648836))
sketch19.addConstraint(Sketcher.Constraint("DistanceX", 1, 2, -1, 1, 78.049849))
sketch19.addConstraint(Sketcher.Constraint("DistanceY", -1, 1, 0, 2, 111.510568))
pocket5 = body2.newObject("PartDesign::Pocket", "Pocket004")
pocket5.Profile = sketch19
pocket5.Length = 119.408

# Sketch on XY plane
sketch20 = body2.newObject("Sketcher::SketchObject", "Sketch019")
sketch20.AttachmentSupport = (doc.getObject("XY_Plane001"), [""])
sketch20.MapMode = "FlatFace"
sketch20.AttachmentOffset = App.Placement(V(0, 0, 244.036947), App.Rotation())
add_polygon(sketch20, [(-154, 147), (-154, 107), (-74, 107), (-74, 147)])  # lines 0-3
sketch20.addConstraint(Sketcher.Constraint("Vertical", 0))
sketch20.addConstraint(Sketcher.Constraint("Horizontal", 1))
sketch20.addConstraint(Sketcher.Constraint("Vertical", 2))
sketch20.addConstraint(Sketcher.Constraint("Horizontal", 3))
sketch20.addConstraint(Sketcher.Constraint("DistanceY", 0, 2, 0, 1, 40.0))
sketch20.addConstraint(Sketcher.Constraint("DistanceX", 0, 2, -1, 1, 154.030599))
sketch20.addConstraint(Sketcher.Constraint("DistanceX", 1, 1, 1, 2, 80.360367))
sketch20.addConstraint(Sketcher.Constraint("DistanceY", -1, 1, 0, 2, 107.054942))
pad15 = body2.newObject("PartDesign::Pad", "Pad014")
pad15.Profile = sketch20
pad15.Length = 15
pad15.Reversed = True

# Sketch on XY plane
sketch21 = body2.newObject("Sketcher::SketchObject", "Sketch020")
sketch21.AttachmentSupport = (doc.getObject("XY_Plane001"), [""])
sketch21.MapMode = "FlatFace"
sketch21.AttachmentOffset = App.Placement(V(0, 0, 244.036947), App.Rotation())
sketch21.addGeometry(Part.Circle(V(-138.4, 133.1, 0), V(0, 0, 1), 7.5), False)  # 0
sketch21.addGeometry(Part.Circle(V(-138.4, 118.4, 0), V(0, 0, 1), 2.5), False)  # 1
sketch21.addGeometry(Part.Circle(V(-90.4, 133.1, 0), V(0, 0, 1), 7.5), False)  # 2
sketch21.addGeometry(Part.Circle(V(-90.4, 118.4, 0), V(0, 0, 1), 2.5), False)  # 3
add_polygon(sketch21, [(-122.5, 136.9), (-122.5, 129.4), (-107.3, 129.4), (-107.3, 136.9)])  # lines 4-7
sketch21.addConstraint(Sketcher.Constraint("Vertical", 4))
sketch21.addConstraint(Sketcher.Constraint("Horizontal", 5))
sketch21.addConstraint(Sketcher.Constraint("Vertical", 6))
sketch21.addConstraint(Sketcher.Constraint("Horizontal", 7))
sketch21.addConstraint(Sketcher.Constraint("Equal", 0, 2))
sketch21.addConstraint(Sketcher.Constraint("Equal", 1, 3))
sketch21.addConstraint(Sketcher.Constraint("Horizontal", 0, 3, 2, 3))
sketch21.addConstraint(Sketcher.Constraint("Horizontal", 1, 3, 3, 3))
sketch21.addConstraint(Sketcher.Constraint("Vertical", 0, 3, 1, 3))
sketch21.addConstraint(Sketcher.Constraint("Vertical", 2, 3, 3, 3))
sketch21.addConstraint(Sketcher.Constraint("Diameter", 0, 15.0))
sketch21.addConstraint(Sketcher.Constraint("Diameter", 1, 5.0))
sketch21.addConstraint(Sketcher.Constraint("DistanceX", 0, 3, 4, 2, 15.875))
sketch21.addConstraint(Sketcher.Constraint("DistanceX", 5, 1, 5, 2, 15.252451))
sketch21.addConstraint(Sketcher.Constraint("DistanceY", 4, 2, 4, 1, 7.470588))
sketch21.addConstraint(Sketcher.Constraint("DistanceX", 2, 3, -1, 1, 90.442432))
sketch21.addConstraint(Sketcher.Constraint("DistanceY", -1, 1, 4, 2, 129.401272))
sketch21.addConstraint(Sketcher.Constraint("DistanceY", 1, 3, 0, 3, 14.785539))
sketch21.addConstraint(Sketcher.Constraint("DistanceX", 0, 3, -1, 1, 138.378706))
sketch21.addConstraint(Sketcher.Constraint("DistanceY", -1, 1, 0, 3, 133.136566))
pocket6 = body2.newObject("PartDesign::Pocket", "Pocket005")
pocket6.Profile = sketch21
pocket6.Length = 20

doc.recompute()
